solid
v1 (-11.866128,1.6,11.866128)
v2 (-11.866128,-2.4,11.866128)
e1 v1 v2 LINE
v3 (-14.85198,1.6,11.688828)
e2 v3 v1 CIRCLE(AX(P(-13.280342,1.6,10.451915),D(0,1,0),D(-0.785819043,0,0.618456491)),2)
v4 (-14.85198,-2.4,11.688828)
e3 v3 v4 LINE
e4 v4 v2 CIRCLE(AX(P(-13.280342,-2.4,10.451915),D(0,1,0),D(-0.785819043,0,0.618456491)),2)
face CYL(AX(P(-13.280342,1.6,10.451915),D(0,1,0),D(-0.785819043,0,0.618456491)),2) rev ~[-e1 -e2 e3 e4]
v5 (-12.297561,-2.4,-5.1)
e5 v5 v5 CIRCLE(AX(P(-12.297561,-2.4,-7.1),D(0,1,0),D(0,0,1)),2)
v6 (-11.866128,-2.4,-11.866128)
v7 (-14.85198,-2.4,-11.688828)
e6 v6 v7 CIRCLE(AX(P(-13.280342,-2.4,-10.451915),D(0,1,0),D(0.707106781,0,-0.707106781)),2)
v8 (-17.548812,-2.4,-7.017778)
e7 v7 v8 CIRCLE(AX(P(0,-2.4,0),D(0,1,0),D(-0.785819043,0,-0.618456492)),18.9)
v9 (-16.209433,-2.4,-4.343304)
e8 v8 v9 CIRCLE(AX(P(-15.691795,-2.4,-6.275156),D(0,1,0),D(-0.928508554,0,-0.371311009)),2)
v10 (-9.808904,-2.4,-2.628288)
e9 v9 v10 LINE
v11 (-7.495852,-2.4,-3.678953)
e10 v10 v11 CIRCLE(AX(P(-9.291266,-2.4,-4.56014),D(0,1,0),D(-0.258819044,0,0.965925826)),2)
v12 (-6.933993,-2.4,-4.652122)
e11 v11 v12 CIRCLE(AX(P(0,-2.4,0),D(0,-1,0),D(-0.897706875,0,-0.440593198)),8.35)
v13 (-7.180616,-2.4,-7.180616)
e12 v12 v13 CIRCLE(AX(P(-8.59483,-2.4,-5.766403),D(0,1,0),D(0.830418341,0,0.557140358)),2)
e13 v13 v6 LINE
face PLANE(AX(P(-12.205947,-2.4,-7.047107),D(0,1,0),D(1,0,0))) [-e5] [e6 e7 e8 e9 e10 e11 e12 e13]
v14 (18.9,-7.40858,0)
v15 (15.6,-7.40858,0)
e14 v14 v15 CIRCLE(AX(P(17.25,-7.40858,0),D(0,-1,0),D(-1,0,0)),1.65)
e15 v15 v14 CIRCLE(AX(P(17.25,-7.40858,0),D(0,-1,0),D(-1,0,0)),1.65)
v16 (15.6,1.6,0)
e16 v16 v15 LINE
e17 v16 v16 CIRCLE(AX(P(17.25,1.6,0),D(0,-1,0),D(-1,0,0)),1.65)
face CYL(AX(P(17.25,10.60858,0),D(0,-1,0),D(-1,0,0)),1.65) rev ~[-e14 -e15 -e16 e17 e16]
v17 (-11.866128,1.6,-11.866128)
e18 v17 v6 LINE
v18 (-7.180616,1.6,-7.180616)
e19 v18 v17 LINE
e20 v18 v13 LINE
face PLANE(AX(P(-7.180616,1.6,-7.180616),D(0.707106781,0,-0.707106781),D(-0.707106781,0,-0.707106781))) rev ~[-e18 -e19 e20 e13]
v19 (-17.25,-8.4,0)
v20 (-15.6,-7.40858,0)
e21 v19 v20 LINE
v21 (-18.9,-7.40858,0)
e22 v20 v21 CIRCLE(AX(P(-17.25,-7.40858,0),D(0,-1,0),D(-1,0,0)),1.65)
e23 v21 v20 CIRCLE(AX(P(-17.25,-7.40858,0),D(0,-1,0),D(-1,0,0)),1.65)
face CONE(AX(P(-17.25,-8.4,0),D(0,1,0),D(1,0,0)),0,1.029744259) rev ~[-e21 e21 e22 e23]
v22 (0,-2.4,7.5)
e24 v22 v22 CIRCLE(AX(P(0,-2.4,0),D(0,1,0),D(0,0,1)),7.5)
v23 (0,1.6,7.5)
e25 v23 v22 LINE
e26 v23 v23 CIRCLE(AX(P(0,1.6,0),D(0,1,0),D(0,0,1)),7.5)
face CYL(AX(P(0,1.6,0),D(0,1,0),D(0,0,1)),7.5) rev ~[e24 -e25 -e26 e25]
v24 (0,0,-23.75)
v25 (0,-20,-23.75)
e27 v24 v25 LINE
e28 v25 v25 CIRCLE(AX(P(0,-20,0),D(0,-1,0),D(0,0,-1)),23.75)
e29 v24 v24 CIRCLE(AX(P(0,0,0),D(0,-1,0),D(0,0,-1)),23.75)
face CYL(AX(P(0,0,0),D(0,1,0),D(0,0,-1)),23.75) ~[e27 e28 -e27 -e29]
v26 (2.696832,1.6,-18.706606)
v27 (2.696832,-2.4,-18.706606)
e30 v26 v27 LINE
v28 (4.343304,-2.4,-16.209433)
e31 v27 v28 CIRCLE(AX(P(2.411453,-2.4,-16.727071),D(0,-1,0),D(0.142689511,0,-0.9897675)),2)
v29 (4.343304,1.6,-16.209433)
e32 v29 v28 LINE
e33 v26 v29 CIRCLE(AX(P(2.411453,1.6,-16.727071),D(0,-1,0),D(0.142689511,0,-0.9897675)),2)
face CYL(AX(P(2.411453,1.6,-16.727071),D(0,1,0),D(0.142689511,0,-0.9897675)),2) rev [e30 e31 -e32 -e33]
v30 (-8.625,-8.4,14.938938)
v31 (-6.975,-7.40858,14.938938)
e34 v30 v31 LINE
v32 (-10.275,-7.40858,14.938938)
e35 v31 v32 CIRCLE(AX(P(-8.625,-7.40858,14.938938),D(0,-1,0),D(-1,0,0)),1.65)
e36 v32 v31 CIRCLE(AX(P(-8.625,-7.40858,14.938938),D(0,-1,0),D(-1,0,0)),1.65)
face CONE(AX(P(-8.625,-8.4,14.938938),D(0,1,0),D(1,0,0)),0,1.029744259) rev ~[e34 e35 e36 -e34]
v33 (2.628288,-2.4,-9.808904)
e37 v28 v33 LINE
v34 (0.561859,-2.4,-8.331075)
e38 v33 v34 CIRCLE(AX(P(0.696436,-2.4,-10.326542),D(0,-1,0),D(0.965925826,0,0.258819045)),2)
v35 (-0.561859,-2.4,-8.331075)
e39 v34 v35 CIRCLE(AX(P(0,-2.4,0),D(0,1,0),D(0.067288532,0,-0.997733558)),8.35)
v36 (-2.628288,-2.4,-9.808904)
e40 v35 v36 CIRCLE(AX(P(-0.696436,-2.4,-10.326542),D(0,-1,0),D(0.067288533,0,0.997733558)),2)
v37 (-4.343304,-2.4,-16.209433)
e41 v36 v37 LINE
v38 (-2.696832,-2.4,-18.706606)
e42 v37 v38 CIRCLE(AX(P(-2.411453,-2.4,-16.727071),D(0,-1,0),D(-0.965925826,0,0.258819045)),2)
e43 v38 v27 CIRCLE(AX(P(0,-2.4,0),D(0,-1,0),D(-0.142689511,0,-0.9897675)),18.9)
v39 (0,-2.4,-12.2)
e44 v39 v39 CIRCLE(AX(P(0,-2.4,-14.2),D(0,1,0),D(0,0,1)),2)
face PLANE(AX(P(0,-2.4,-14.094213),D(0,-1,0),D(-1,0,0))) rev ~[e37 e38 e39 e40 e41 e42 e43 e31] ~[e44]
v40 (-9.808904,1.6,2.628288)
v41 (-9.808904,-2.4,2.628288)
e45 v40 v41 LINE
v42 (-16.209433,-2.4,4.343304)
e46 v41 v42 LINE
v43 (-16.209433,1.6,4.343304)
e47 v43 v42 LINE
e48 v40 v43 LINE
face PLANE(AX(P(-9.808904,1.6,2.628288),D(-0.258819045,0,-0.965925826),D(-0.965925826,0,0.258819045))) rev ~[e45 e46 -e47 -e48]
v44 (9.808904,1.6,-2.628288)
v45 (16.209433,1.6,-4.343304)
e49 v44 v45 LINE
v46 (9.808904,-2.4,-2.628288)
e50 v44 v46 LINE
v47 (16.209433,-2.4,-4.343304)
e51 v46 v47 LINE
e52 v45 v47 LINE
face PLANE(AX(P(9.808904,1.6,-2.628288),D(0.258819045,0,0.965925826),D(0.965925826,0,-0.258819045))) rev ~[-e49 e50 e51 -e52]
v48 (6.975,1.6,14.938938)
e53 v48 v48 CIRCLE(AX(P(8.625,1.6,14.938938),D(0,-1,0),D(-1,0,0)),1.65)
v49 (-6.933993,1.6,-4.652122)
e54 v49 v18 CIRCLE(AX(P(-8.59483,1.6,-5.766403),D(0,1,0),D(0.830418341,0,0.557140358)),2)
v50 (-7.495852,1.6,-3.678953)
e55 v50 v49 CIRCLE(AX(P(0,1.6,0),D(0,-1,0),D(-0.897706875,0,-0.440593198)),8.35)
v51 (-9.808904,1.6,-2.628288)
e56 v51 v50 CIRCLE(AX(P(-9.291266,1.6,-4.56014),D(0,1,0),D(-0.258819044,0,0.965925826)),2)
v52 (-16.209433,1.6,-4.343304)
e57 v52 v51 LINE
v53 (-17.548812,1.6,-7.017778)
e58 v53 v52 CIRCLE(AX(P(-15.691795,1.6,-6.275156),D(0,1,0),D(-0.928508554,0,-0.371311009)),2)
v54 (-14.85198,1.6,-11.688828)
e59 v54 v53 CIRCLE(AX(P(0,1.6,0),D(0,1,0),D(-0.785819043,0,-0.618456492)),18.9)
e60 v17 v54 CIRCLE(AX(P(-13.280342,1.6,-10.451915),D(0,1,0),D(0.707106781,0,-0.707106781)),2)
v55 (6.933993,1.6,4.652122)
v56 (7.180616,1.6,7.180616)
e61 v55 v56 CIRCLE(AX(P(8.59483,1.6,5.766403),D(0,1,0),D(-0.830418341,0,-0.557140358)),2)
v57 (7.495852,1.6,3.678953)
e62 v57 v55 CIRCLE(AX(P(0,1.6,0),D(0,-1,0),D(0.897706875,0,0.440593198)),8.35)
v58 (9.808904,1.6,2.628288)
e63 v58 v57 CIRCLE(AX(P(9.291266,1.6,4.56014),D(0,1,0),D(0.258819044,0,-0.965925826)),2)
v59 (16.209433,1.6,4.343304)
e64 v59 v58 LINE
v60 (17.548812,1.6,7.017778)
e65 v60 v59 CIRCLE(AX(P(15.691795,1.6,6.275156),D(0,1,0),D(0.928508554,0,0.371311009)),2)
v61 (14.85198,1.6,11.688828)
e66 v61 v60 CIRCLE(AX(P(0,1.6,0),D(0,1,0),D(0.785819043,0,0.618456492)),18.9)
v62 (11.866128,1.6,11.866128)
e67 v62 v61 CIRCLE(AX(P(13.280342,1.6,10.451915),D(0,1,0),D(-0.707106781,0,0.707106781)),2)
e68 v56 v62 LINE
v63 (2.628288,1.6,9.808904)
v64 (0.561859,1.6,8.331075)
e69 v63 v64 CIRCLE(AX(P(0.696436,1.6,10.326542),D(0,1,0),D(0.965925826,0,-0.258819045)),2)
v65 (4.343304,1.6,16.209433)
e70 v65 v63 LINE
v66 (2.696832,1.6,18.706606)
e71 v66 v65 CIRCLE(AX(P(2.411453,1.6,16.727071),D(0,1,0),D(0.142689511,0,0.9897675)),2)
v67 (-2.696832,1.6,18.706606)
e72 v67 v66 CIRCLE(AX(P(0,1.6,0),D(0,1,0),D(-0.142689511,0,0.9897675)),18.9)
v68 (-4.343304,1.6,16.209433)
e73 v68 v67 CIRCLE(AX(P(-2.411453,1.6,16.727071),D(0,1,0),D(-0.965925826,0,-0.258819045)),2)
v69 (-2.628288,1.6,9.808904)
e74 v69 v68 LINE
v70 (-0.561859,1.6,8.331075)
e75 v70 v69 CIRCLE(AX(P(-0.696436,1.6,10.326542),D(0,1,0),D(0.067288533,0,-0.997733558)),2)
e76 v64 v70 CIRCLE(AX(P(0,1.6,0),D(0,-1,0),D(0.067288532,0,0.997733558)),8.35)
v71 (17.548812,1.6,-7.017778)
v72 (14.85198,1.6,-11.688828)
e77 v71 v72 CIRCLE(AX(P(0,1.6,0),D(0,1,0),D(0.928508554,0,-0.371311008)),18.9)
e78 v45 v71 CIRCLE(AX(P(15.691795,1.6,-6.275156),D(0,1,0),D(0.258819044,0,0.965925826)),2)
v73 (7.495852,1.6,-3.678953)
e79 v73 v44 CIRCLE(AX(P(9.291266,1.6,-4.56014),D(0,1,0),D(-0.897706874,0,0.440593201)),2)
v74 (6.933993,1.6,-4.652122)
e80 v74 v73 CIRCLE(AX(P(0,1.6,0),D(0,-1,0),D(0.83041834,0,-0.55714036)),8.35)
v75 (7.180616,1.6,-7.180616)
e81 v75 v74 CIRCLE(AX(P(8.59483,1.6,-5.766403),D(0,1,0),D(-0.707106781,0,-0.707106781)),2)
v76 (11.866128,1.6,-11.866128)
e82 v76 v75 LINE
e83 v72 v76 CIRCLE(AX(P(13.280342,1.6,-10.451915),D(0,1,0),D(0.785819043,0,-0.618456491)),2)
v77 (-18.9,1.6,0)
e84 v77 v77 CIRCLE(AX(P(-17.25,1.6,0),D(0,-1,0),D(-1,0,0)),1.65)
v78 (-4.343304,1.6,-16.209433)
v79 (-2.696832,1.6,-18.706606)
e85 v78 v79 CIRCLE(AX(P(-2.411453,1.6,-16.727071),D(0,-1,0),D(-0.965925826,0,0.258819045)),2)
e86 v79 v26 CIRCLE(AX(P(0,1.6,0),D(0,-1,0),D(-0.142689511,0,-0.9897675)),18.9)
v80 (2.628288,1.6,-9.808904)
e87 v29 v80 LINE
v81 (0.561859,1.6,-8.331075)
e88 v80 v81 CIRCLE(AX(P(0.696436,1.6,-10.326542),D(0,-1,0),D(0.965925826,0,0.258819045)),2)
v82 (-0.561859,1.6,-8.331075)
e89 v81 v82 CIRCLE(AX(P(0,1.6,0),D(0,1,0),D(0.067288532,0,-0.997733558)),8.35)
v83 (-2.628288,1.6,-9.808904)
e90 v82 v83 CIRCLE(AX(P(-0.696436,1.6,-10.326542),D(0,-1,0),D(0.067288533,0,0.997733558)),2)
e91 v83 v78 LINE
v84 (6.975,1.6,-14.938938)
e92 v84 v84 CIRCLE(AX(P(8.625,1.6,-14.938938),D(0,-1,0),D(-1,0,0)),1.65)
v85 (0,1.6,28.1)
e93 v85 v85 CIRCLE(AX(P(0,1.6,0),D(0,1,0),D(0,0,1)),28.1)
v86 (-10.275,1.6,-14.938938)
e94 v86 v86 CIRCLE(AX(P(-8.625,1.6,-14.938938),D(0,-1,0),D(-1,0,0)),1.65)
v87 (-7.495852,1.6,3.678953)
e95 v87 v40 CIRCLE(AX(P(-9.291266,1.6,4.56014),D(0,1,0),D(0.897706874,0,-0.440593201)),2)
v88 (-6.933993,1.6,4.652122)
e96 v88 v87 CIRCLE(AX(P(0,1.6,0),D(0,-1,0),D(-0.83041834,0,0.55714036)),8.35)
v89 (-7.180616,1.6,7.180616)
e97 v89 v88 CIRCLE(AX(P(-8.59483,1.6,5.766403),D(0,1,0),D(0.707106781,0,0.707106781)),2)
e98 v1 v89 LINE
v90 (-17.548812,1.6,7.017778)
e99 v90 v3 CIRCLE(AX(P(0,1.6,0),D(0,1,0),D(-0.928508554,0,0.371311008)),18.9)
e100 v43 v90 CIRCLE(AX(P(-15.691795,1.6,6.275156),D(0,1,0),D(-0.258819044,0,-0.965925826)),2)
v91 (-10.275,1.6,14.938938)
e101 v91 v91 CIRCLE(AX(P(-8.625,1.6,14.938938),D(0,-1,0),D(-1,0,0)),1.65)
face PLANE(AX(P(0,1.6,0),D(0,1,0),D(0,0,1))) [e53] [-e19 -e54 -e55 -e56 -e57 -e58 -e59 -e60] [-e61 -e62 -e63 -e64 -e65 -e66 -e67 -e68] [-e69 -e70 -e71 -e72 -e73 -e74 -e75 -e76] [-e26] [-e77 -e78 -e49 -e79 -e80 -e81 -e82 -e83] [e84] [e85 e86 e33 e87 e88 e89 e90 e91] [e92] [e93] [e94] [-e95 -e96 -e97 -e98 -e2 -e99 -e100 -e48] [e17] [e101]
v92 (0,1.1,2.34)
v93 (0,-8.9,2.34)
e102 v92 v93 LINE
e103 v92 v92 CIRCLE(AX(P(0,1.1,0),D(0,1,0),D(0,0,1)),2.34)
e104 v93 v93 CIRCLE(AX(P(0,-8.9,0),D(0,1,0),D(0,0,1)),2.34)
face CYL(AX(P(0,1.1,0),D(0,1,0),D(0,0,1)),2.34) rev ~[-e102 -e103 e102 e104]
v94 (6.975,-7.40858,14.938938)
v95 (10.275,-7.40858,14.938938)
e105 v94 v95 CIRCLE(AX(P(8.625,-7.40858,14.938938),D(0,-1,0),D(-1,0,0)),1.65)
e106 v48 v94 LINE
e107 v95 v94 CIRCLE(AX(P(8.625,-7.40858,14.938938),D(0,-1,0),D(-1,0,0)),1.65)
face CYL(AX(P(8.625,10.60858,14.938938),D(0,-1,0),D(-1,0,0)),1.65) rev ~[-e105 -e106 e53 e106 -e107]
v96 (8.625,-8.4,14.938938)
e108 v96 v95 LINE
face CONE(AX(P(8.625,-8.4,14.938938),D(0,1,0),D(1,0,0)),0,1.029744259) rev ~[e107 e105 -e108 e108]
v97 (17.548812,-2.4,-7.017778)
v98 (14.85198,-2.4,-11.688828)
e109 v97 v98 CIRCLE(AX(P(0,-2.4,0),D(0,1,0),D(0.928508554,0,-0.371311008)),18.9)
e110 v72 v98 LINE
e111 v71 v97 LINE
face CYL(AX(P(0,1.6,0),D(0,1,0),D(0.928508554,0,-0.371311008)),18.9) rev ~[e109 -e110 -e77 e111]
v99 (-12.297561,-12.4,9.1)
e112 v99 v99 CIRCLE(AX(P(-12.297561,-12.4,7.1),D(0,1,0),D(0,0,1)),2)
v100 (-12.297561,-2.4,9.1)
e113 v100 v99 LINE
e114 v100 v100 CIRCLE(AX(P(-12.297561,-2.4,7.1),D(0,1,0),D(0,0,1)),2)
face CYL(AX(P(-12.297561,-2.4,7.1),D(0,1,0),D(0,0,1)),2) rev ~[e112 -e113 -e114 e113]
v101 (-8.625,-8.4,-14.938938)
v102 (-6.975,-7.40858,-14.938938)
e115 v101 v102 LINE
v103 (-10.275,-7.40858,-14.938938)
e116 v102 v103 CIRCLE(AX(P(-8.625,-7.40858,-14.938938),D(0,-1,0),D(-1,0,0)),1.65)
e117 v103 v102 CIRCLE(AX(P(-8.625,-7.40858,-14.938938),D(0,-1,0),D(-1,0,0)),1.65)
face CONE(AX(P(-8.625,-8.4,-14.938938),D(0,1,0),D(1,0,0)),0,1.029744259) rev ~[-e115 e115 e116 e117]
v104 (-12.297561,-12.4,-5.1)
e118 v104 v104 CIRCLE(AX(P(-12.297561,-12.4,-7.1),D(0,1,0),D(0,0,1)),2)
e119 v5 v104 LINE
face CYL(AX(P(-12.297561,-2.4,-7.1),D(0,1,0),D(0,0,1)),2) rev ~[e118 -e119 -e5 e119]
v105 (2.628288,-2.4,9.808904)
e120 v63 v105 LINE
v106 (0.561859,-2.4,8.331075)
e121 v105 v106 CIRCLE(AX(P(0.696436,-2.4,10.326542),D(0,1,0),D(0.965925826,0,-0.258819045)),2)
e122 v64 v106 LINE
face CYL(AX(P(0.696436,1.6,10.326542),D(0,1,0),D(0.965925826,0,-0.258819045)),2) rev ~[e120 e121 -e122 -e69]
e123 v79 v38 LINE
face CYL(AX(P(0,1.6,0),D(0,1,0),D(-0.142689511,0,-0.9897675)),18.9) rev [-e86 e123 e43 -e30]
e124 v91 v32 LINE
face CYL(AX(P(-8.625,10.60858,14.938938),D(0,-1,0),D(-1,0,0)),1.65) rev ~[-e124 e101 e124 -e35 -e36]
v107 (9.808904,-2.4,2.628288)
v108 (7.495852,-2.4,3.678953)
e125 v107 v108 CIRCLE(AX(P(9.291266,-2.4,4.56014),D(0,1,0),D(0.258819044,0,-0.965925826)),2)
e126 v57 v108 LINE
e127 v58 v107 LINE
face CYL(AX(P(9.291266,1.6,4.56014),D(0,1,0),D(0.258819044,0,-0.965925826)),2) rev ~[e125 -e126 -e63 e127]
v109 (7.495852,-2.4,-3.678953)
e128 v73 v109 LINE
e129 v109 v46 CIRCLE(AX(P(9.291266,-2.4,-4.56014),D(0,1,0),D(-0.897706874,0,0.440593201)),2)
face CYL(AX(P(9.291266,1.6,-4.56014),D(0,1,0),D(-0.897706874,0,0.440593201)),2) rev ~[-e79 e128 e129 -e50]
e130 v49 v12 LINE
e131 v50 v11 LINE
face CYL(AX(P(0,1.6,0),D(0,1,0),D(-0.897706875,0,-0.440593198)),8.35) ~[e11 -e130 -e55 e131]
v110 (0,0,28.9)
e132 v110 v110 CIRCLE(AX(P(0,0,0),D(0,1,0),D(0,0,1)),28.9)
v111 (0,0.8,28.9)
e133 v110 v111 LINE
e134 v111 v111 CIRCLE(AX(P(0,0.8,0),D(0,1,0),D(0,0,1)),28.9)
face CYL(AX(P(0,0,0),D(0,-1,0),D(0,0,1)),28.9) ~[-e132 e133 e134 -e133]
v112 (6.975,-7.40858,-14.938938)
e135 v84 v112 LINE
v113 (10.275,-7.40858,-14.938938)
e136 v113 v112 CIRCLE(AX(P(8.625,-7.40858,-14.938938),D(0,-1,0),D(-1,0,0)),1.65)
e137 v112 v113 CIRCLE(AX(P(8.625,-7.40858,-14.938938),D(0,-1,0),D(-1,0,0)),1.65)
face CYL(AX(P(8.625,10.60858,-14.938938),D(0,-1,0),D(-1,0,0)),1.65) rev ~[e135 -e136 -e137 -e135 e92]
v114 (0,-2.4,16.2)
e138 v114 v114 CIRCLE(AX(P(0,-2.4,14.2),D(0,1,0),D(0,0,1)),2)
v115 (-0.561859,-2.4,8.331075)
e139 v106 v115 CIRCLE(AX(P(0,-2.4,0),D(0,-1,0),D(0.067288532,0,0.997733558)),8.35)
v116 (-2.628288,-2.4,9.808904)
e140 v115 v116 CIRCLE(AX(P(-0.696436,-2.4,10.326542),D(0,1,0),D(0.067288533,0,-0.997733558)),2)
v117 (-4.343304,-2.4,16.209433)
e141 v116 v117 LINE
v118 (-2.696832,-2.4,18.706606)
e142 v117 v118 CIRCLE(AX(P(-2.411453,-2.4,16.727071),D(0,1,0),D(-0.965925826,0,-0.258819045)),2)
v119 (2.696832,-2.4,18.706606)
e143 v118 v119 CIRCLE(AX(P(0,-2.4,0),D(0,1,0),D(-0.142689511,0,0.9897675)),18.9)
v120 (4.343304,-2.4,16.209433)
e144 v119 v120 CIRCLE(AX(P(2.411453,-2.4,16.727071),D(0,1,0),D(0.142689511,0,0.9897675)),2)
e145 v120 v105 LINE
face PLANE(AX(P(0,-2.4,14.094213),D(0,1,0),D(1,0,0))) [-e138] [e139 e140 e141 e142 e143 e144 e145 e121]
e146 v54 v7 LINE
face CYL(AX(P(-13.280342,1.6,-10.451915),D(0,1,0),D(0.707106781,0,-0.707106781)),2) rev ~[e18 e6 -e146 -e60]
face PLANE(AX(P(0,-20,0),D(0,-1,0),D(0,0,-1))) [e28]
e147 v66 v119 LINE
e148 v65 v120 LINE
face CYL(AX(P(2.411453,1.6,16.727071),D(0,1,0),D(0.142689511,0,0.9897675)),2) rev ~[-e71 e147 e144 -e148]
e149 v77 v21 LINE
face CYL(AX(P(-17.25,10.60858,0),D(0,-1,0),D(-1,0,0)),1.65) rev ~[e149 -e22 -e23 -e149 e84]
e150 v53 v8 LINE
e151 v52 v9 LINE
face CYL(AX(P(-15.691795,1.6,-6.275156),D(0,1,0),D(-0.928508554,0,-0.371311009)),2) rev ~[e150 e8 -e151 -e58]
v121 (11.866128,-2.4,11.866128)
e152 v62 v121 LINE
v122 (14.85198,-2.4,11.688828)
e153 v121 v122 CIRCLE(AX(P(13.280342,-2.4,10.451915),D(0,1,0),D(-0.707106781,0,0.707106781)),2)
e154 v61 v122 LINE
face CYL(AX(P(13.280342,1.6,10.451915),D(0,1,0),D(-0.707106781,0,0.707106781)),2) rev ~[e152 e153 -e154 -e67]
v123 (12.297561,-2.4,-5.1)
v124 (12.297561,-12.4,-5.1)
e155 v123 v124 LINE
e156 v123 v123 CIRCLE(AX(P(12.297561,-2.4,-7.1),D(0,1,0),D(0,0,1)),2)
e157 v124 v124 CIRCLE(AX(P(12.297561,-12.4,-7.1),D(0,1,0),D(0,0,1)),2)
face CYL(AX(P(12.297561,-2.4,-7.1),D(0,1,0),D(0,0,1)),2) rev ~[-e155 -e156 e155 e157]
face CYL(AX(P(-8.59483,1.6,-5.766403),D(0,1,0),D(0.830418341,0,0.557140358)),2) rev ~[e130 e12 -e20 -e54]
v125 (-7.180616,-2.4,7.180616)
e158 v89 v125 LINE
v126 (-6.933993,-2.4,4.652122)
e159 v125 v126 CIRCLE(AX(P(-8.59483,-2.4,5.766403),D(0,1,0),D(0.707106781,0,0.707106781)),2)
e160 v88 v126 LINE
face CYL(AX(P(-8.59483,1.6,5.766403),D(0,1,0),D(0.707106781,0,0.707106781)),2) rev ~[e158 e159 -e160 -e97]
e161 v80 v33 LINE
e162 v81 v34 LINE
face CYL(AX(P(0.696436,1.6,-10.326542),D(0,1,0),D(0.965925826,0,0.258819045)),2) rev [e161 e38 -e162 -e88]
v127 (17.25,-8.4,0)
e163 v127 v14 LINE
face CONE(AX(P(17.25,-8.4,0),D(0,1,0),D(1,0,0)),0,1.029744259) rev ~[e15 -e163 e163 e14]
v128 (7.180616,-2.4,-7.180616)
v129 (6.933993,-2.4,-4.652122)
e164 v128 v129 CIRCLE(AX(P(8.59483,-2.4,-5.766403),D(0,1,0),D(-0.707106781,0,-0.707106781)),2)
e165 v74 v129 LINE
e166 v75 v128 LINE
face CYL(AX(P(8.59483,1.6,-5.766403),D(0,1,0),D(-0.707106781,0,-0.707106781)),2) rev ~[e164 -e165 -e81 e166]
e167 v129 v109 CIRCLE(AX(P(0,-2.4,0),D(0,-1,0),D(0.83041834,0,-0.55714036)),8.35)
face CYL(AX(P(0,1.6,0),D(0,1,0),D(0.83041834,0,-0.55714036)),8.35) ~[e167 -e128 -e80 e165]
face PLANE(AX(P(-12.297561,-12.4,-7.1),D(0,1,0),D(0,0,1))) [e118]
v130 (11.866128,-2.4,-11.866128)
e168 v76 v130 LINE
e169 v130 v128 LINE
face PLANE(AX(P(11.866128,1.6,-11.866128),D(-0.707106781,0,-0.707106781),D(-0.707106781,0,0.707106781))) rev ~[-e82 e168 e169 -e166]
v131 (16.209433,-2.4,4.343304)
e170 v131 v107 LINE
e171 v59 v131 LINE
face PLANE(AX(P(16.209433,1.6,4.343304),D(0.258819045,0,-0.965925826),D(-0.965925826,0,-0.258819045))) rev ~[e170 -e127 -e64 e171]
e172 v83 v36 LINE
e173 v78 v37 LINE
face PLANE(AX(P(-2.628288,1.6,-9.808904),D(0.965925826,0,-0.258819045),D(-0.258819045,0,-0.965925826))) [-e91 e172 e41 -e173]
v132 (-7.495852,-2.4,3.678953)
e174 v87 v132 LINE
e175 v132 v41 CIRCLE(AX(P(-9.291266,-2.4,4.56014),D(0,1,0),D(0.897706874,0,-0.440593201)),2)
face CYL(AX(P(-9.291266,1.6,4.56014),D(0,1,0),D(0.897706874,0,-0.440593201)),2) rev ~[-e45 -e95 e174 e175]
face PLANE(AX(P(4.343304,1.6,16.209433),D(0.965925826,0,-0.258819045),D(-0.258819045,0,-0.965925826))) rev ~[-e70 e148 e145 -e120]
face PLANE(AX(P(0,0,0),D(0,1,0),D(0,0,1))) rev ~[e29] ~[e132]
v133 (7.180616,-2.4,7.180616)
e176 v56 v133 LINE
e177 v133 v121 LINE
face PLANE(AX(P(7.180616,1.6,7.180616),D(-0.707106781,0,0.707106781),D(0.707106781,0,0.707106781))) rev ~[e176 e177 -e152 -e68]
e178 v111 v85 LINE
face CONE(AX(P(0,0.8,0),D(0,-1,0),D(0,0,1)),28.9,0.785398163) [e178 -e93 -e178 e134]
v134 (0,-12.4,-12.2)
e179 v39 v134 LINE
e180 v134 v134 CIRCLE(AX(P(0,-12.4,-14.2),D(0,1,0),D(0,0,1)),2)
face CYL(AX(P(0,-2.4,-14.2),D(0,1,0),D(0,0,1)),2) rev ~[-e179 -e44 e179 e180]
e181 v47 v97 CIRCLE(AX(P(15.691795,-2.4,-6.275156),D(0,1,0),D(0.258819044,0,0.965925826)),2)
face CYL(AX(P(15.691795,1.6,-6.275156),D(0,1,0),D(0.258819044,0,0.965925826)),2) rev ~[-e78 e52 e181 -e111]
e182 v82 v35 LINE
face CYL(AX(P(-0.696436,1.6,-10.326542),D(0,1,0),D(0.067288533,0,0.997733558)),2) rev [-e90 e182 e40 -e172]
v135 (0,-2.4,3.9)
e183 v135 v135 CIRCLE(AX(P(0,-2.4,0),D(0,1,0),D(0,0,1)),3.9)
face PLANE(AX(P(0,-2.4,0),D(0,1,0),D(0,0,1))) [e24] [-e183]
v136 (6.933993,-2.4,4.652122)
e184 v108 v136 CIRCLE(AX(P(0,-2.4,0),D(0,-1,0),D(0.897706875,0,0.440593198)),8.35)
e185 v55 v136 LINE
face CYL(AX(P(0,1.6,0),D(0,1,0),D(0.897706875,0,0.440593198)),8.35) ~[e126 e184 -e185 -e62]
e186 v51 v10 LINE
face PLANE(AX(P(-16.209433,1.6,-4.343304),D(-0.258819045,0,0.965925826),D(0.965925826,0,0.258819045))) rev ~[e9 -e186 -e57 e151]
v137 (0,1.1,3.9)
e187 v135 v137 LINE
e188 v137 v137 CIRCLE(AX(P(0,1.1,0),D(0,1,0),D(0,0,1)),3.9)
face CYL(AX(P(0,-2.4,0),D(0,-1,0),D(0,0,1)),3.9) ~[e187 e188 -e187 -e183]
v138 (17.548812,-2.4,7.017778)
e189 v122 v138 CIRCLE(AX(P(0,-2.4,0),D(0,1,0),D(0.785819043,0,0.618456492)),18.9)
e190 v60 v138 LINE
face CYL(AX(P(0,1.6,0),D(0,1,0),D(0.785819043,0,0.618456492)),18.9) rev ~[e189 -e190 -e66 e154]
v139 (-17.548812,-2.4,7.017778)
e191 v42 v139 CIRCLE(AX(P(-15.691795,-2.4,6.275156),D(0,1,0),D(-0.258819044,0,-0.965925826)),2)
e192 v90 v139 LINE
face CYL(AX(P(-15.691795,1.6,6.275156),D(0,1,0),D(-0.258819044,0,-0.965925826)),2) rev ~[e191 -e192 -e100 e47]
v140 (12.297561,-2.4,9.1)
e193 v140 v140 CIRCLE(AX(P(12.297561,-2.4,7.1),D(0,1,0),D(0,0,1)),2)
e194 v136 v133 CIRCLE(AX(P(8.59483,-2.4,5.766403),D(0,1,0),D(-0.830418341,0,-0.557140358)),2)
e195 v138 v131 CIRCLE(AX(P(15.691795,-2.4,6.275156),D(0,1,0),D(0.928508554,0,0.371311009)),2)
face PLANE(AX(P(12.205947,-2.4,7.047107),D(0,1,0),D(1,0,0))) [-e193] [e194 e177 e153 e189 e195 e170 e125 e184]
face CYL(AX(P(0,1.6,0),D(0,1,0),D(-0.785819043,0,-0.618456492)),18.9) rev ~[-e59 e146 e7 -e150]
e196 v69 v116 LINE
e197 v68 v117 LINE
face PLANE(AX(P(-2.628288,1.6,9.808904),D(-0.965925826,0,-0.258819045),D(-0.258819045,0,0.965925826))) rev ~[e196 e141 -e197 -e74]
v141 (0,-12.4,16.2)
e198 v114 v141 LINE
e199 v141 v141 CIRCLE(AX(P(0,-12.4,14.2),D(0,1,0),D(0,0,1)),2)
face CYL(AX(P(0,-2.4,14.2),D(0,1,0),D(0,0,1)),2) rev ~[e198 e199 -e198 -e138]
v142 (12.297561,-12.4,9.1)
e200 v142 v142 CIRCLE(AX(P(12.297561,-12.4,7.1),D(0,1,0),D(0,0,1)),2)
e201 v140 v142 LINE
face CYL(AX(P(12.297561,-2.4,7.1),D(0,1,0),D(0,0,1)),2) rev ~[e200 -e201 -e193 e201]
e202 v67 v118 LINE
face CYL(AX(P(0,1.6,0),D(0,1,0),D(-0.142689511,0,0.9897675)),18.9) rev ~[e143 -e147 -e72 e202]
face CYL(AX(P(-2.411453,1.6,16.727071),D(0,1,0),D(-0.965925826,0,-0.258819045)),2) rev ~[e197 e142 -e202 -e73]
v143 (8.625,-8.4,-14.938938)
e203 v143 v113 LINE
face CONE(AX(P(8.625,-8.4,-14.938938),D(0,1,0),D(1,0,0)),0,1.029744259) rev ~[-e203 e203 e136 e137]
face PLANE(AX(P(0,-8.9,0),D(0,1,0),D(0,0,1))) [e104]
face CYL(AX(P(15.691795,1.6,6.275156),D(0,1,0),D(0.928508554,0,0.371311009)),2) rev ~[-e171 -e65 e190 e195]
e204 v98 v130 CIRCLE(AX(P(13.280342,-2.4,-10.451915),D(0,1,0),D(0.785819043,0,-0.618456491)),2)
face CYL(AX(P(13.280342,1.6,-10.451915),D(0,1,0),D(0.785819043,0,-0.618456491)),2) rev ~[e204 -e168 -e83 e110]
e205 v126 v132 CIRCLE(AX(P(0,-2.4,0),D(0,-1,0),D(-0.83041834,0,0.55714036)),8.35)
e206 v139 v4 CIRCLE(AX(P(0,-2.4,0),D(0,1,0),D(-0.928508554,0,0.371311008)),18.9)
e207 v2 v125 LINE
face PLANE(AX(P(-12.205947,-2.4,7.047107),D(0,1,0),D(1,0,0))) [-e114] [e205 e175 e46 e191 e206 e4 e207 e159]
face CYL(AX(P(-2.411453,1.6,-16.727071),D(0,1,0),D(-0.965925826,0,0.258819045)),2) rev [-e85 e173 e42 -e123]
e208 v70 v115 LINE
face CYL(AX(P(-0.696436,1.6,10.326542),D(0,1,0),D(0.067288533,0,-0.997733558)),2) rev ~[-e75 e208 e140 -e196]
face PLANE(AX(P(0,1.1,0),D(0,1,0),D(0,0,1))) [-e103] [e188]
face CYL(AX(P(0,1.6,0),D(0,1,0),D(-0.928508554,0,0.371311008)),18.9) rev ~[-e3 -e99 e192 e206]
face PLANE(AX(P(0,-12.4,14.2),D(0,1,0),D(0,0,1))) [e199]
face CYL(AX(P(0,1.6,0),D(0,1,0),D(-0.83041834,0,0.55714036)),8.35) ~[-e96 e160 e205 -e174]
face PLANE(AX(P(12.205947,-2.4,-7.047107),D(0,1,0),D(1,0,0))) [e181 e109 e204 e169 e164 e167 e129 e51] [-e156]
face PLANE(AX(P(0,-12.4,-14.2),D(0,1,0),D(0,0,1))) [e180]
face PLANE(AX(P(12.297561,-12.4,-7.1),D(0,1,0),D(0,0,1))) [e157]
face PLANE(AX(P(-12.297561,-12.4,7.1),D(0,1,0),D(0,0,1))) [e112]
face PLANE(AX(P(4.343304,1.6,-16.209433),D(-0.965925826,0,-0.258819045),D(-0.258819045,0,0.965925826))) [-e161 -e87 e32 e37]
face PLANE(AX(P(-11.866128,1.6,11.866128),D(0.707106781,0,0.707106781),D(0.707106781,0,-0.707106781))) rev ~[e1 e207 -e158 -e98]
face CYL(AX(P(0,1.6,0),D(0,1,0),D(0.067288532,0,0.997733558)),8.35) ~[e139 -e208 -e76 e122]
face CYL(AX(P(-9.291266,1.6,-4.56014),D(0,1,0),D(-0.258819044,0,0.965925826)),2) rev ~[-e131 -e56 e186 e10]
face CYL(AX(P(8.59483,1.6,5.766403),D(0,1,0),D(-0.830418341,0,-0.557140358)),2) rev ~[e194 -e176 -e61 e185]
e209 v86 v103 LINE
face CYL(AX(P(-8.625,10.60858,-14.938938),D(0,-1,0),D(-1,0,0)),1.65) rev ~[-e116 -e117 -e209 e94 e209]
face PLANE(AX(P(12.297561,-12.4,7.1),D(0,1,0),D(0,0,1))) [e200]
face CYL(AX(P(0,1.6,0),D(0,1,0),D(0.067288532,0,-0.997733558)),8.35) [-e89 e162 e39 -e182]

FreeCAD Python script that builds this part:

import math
import FreeCAD as App
import Part
import Sketcher
from FreeCAD import Vector
Q = App.Units.Quantity


def edges_at(feature, points):
    """Names of the edges that pass closest to the given points."""
    edges = feature.Shape.Edges
    near = lambda p: min(range(len(edges)), key=lambda i: edges[i].distToShape(Part.Vertex(*p))[0])
    return sorted({f"Edge{near(p) + 1}" for p in points})

doc = App.newDocument("Part")
body = doc.addObject("PartDesign::Body", "Body")

# Sketch on XZ plane
sketch1 = body.newObject("Sketcher::SketchObject", "Sketch")
sketch1.AttachmentSupport = (doc.getObject("XZ_Plane"), [""])
sketch1.MapMode = "FlatFace"
sketch1.addGeometry(Part.Circle(Vector(0, 0, 0), Vector(0, 0, 1), 29), False)
sketch1.addConstraint(Sketcher.Constraint("Coincident", 0, 3, -1, 1))
sketch1.addConstraint(Sketcher.Constraint("Diameter", 0, 57.8))
pad1 = body.newObject("PartDesign::Pad", "Pad")
pad1.Profile = sketch1
pad1.Length = 1.6
pad1.Reversed = True
doc.recompute()

chamfer = body.newObject("PartDesign::Chamfer", "Chamfer")
chamfer.Base = (pad1, edges_at(pad1, [(0, 1.6, -28.9)]))
chamfer.Size = 0.8

# Sketch on XZ plane
sketch2 = body.newObject("Sketcher::SketchObject", "Sketch001")
sketch2.AttachmentSupport = (doc.getObject("XZ_Plane"), [""])
sketch2.MapMode = "FlatFace"
sketch2.addGeometry(Part.Circle(Vector(0, 0, 0), Vector(0, 0, 1), 24), False)
sketch2.addConstraint(Sketcher.Constraint("Coincident", 0, 3, -1, 1))
sketch2.addConstraint(Sketcher.Constraint("Diameter", 0, 47.5))
pad2 = body.newObject("PartDesign::Pad", "Pad001")
pad2.Profile = sketch2
pad2.Length = 20

# Sketch on XZ plane
sketch3 = body.newObject("Sketcher::SketchObject", "Sketch002")
sketch3.AttachmentSupport = (doc.getObject("XZ_Plane"), [""])
sketch3.MapMode = "FlatFace"
sketch3.AttachmentOffset = App.Placement(Vector(0, 0, -1.6), App.Rotation())
sketch3.addGeometry(Part.Circle(Vector(-17.2, 0, 0), Vector(0, 0, 1), 1.6), False)
sketch3.addGeometry(Part.Circle(Vector(-8.6, -14.9, 0), Vector(0, 0, 1), 1.6), False)
sketch3.addGeometry(Part.Circle(Vector(8.6, -14.9, 0), Vector(0, 0, 1), 1.6), False)
sketch3.addGeometry(Part.Circle(Vector(17.2, 0, 0), Vector(0, 0, 1), 1.6), False)
sketch3.addGeometry(Part.Circle(Vector(8.6, 14.9, 0), Vector(0, 0, 1), 1.6), False)
sketch3.addGeometry(Part.Circle(Vector(-8.6, 14.9, 0), Vector(0, 0, 1), 1.6), False)
sketch3.addConstraint(Sketcher.Constraint("Equal", 0, 1))
sketch3.addConstraint(Sketcher.Constraint("Equal", 1, 2))
sketch3.addConstraint(Sketcher.Constraint("Equal", 2, 3))
sketch3.addConstraint(Sketcher.Constraint("Equal", 3, 4))
sketch3.addConstraint(Sketcher.Constraint("Equal", 4, 5))
sketch3.addConstraint(Sketcher.Constraint("Symmetric", 0, 3, 3, 3, -1, 1))
sketch3.addConstraint(Sketcher.Constraint("Symmetric", 1, 3, 4, 3, -1, 1))
sketch3.addConstraint(Sketcher.Constraint("Symmetric", 2, 3, 5, 3, -1, 1))
sketch3.addConstraint(Sketcher.Constraint("Symmetric", 1, 3, 2, 3, -2))
sketch3.addConstraint(Sketcher.Constraint("PointOnObject", 0, 3, -1))
sketch3.addConstraint(Sketcher.Constraint("Diameter", 0, 3.3))
sketch3.addConstraint(Sketcher.Constraint("DistanceX", 0, 3, 3, 3, 34.5))
sketch3.addConstraint(Sketcher.Constraint("DistanceX", 1, 3, 2, 3, 17.25))
sketch3.addConstraint(Sketcher.Constraint("DistanceY", 1, 3, -1, 1, 14.938938))
doc.recompute()
hole = body.newObject("PartDesign::Hole", "Hole")
hole.Profile = sketch3
hole.ThreadType = "None"
hole.Diameter = 3.3
hole.DepthType = "Dimension"
hole.Depth = 9.00858
hole.DrillPoint = "Angled"
hole.DrillPointAngle = 118
hole.Reversed = True

# Sketch on XZ plane
sketch4 = body.newObject("Sketcher::SketchObject", "Sketch003")
sketch4.AttachmentSupport = (doc.getObject("XZ_Plane"), [""])
sketch4.MapMode = "FlatFace"
sketch4.AttachmentOffset = App.Placement(Vector(0, 0, -1.6), App.Rotation())
sketch4.addGeometry(Part.Circle(Vector(0, 0, 0), Vector(0, 0, 1), 7.5), False)
sketch4.addGeometry(Part.LineSegment(Vector(-4.3, -16.2, 0), Vector(-2.6, -9.8, 0)), False)
sketch4.addGeometry(Part.ArcOfCircle(Part.Circle(Vector(-0.7, -10.3, 0), Vector(0, 0, 1), 2), math.radians(86), math.radians(165)), False)
sketch4.addGeometry(Part.ArcOfCircle(Part.Circle(Vector(0, 0, 0), Vector(0, 0, 1), 8.4), math.radians(-93.86), math.radians(-86.14)), False)
sketch4.addGeometry(Part.ArcOfCircle(Part.Circle(Vector(0.7, -10.3, 0), Vector(0, 0, 1), 2), math.radians(15), math.radians(94)), False)
sketch4.addGeometry(Part.LineSegment(Vector(2.6, -9.8, 0), Vector(4.3, -16.2, 0)), False)
sketch4.addGeometry(Part.ArcOfCircle(Part.Circle(Vector(2.4, -16.7, 0), Vector(0, 0, 1), 2), math.radians(-82), math.radians(15)), False)
sketch4.addGeometry(Part.ArcOfCircle(Part.Circle(Vector(0, 0, 0), Vector(0, 0, 1), 18.9), math.radians(-98.2), math.radians(-81.8)), False)
sketch4.addGeometry(Part.ArcOfCircle(Part.Circle(Vector(-2.4, -16.7, 0), Vector(0, 0, 1), 2), math.radians(165), math.radians(262)), False)
sketch4.addGeometry(Part.LineSegment(Vector(9.8, -2.6, 0), Vector(16.2, -4.3, 0)), False)
sketch4.addGeometry(Part.ArcOfCircle(Part.Circle(Vector(15.7, -6.3, 0), Vector(0, 0, 1), 2), math.radians(-22), math.radians(75)), False)
sketch4.addGeometry(Part.ArcOfCircle(Part.Circle(Vector(0, 0, 0), Vector(0, 0, 1), 18.9), math.radians(-38.2), math.radians(-21.8)), False)
sketch4.addGeometry(Part.ArcOfCircle(Part.Circle(Vector(13.3, -10.5, 0), Vector(0, 0, 1), 2), math.radians(-135), math.radians(-38)), False)
sketch4.addGeometry(Part.LineSegment(Vector(11.9, -11.9, 0), Vector(7.2, -7.2, 0)), False)
sketch4.addGeometry(Part.ArcOfCircle(Part.Circle(Vector(8.6, -5.8, 0), Vector(0, 0, 1), 2), math.radians(146), math.radians(225)), False)
sketch4.addGeometry(Part.ArcOfCircle(Part.Circle(Vector(0, 0, 0), Vector(0, 0, 1), 8.3), math.radians(-33.86), math.radians(-26.14)), False)
sketch4.addGeometry(Part.ArcOfCircle(Part.Circle(Vector(9.3, -4.6, 0), Vector(0, 0, 1), 2), math.radians(75), math.radians(154)), False)
sketch4.addGeometry(Part.LineSegment(Vector(7.2, 7.2, 0), Vector(11.9, 11.9, 0)), False)
sketch4.addGeometry(Part.ArcOfCircle(Part.Circle(Vector(13.3, 10.5, 0), Vector(0, 0, 1), 2), math.radians(38), math.radians(135)), False)
sketch4.addGeometry(Part.ArcOfCircle(Part.Circle(Vector(0, 0, 0), Vector(0, 0, 1), 18.9), math.radians(21.8), math.radians(38.2)), False)
sketch4.addGeometry(Part.ArcOfCircle(Part.Circle(Vector(15.7, 6.3, 0), Vector(0, 0, 1), 2), math.radians(-75), math.radians(22)), False)
sketch4.addGeometry(Part.LineSegment(Vector(16.2, 4.3, 0), Vector(9.8, 2.6, 0)), False)
sketch4.addGeometry(Part.ArcOfCircle(Part.Circle(Vector(9.3, 4.6, 0), Vector(0, 0, 1), 2), math.radians(-154), math.radians(-75)), False)
sketch4.addGeometry(Part.ArcOfCircle(Part.Circle(Vector(0, 0, 0), Vector(0, 0, 1), 8.3), math.radians(26.14), math.radians(33.86)), False)
sketch4.addGeometry(Part.ArcOfCircle(Part.Circle(Vector(8.6, 5.8, 0), Vector(0, 0, 1), 2), math.radians(135), math.radians(214)), False)
sketch4.addGeometry(Part.LineSegment(Vector(-2.6, 9.8, 0), Vector(-4.3, 16.2, 0)), False)
sketch4.addGeometry(Part.ArcOfCircle(Part.Circle(Vector(-2.4, 16.7, 0), Vector(0, 0, 1), 2), math.radians(98), math.radians(195)), False)
sketch4.addGeometry(Part.ArcOfCircle(Part.Circle(Vector(0, 0, 0), Vector(0, 0, 1), 18.9), math.radians(81.8), math.radians(98.2)), False)
sketch4.addGeometry(Part.ArcOfCircle(Part.Circle(Vector(2.4, 16.7, 0), Vector(0, 0, 1), 2), math.radians(-15), math.radians(82)), False)
sketch4.addGeometry(Part.LineSegment(Vector(4.3, 16.2, 0), Vector(2.6, 9.8, 0)), False)
sketch4.addGeometry(Part.ArcOfCircle(Part.Circle(Vector(0.7, 10.3, 0), Vector(0, 0, 1), 2), math.radians(-94), math.radians(-15)), False)
sketch4.addGeometry(Part.ArcOfCircle(Part.Circle(Vector(0, 0, 0), Vector(0, 0, 1), 8.4), math.radians(86.14), math.radians(93.86)), False)
sketch4.addGeometry(Part.ArcOfCircle(Part.Circle(Vector(-0.7, 10.3, 0), Vector(0, 0, 1), 2), math.radians(-165), math.radians(-86)), False)
sketch4.addGeometry(Part.LineSegment(Vector(-9.8, 2.6, 0), Vector(-16.2, 4.3, 0)), False)
sketch4.addGeometry(Part.ArcOfCircle(Part.Circle(Vector(-15.7, 6.3, 0), Vector(0, 0, 1), 2), math.radians(158), math.radians(255)), False)
sketch4.addGeometry(Part.ArcOfCircle(Part.Circle(Vector(0, 0, 0), Vector(0, 0, 1), 18.9), math.radians(141.8), math.radians(158.2)), False)
sketch4.addGeometry(Part.ArcOfCircle(Part.Circle(Vector(-13.3, 10.5, 0), Vector(0, 0, 1), 2), math.radians(45), math.radians(142)), False)
sketch4.addGeometry(Part.LineSegment(Vector(-11.9, 11.9, 0), Vector(-7.2, 7.2, 0)), False)
sketch4.addGeometry(Part.ArcOfCircle(Part.Circle(Vector(-8.6, 5.8, 0), Vector(0, 0, 1), 2), math.radians(-34), math.radians(45)), False)
sketch4.addGeometry(Part.ArcOfCircle(Part.Circle(Vector(0, 0, 0), Vector(0, 0, 1), 8.3), math.radians(146.14), math.radians(153.86)), False)
sketch4.addGeometry(Part.ArcOfCircle(Part.Circle(Vector(-9.3, 4.6, 0), Vector(0, 0, 1), 2), math.radians(-105), math.radians(-26)), False)
sketch4.addGeometry(Part.LineSegment(Vector(-7.2, -7.2, 0), Vector(-11.9, -11.9, 0)), False)
sketch4.addGeometry(Part.ArcOfCircle(Part.Circle(Vector(-13.3, -10.5, 0), Vector(0, 0, 1), 2), math.radians(-142), math.radians(-45)), False)
sketch4.addGeometry(Part.ArcOfCircle(Part.Circle(Vector(0, 0, 0), Vector(0, 0, 1), 18.9), math.radians(-158.2), math.radians(-141.8)), False)
sketch4.addGeometry(Part.ArcOfCircle(Part.Circle(Vector(-15.7, -6.3, 0), Vector(0, 0, 1), 2), math.radians(105), math.radians(202)), False)
sketch4.addGeometry(Part.LineSegment(Vector(-16.2, -4.3, 0), Vector(-9.8, -2.6, 0)), False)
sketch4.addGeometry(Part.ArcOfCircle(Part.Circle(Vector(-9.3, -4.6, 0), Vector(0, 0, 1), 2), math.radians(26), math.radians(105)), False)
sketch4.addGeometry(Part.ArcOfCircle(Part.Circle(Vector(0, 0, 0), Vector(0, 0, 1), 8.3), math.radians(-153.86), math.radians(-146.14)), False)
sketch4.addGeometry(Part.ArcOfCircle(Part.Circle(Vector(-8.6, -5.8, 0), Vector(0, 0, 1), 2), math.radians(-45), math.radians(34)), False)
sketch4.addConstraint(Sketcher.Constraint("Tangent", 1, 2, 2, 2))
sketch4.addConstraint(Sketcher.Constraint("Tangent", 2, 1, 3, 1))
sketch4.addConstraint(Sketcher.Constraint("Tangent", 3, 2, 4, 2))
sketch4.addConstraint(Sketcher.Constraint("Tangent", 4, 1, 5, 1))
sketch4.addConstraint(Sketcher.Constraint("Tangent", 5, 2, 6, 2))
sketch4.addConstraint(Sketcher.Constraint("Tangent", 6, 1, 7, 2))
sketch4.addConstraint(Sketcher.Constraint("Tangent", 7, 1, 8, 2))
sketch4.addConstraint(Sketcher.Constraint("Tangent", 8, 1, 1, 1))
sketch4.addConstraint(Sketcher.Constraint("Tangent", 9, 2, 10, 2))
sketch4.addConstraint(Sketcher.Constraint("Tangent", 10, 1, 11, 2))
sketch4.addConstraint(Sketcher.Constraint("Tangent", 11, 1, 12, 2))
sketch4.addConstraint(Sketcher.Constraint("Tangent", 12, 1, 13, 1))
sketch4.addConstraint(Sketcher.Constraint("Tangent", 13, 2, 14, 2))
sketch4.addConstraint(Sketcher.Constraint("Tangent", 14, 1, 15, 1))
sketch4.addConstraint(Sketcher.Constraint("Tangent", 15, 2, 16, 2))
sketch4.addConstraint(Sketcher.Constraint("Tangent", 16, 1, 9, 1))
sketch4.addConstraint(Sketcher.Constraint("Tangent", 17, 2, 18, 2))
sketch4.addConstraint(Sketcher.Constraint("Tangent", 18, 1, 19, 2))
sketch4.addConstraint(Sketcher.Constraint("Tangent", 19, 1, 20, 2))
sketch4.addConstraint(Sketcher.Constraint("Tangent", 20, 1, 21, 1))
sketch4.addConstraint(Sketcher.Constraint("Tangent", 21, 2, 22, 2))
sketch4.addConstraint(Sketcher.Constraint("Tangent", 22, 1, 23, 1))
sketch4.addConstraint(Sketcher.Constraint("Tangent", 23, 2, 24, 2))
sketch4.addConstraint(Sketcher.Constraint("Tangent", 24, 1, 17, 1))
sketch4.addConstraint(Sketcher.Constraint("Tangent", 25, 2, 26, 2))
sketch4.addConstraint(Sketcher.Constraint("Tangent", 26, 1, 27, 2))
sketch4.addConstraint(Sketcher.Constraint("Tangent", 27, 1, 28, 2))
sketch4.addConstraint(Sketcher.Constraint("Tangent", 28, 1, 29, 1))
sketch4.addConstraint(Sketcher.Constraint("Tangent", 29, 2, 30, 2))
sketch4.addConstraint(Sketcher.Constraint("Tangent", 30, 1, 31, 1))
sketch4.addConstraint(Sketcher.Constraint("Tangent", 31, 2, 32, 2))
sketch4.addConstraint(Sketcher.Constraint("Tangent", 32, 1, 25, 1))
sketch4.addConstraint(Sketcher.Constraint("Tangent", 33, 2, 34, 2))
sketch4.addConstraint(Sketcher.Constraint("Tangent", 34, 1, 35, 2))
sketch4.addConstraint(Sketcher.Constraint("Tangent", 35, 1, 36, 2))
sketch4.addConstraint(Sketcher.Constraint("Tangent", 36, 1, 37, 1))
sketch4.addConstraint(Sketcher.Constraint("Tangent", 37, 2, 38, 2))
sketch4.addConstraint(Sketcher.Constraint("Tangent", 38, 1, 39, 1))
sketch4.addConstraint(Sketcher.Constraint("Tangent", 39, 2, 40, 2))
sketch4.addConstraint(Sketcher.Constraint("Tangent", 40, 1, 33, 1))
sketch4.addConstraint(Sketcher.Constraint("Tangent", 41, 2, 42, 2))
sketch4.addConstraint(Sketcher.Constraint("Tangent", 42, 1, 43, 2))
sketch4.addConstraint(Sketcher.Constraint("Tangent", 43, 1, 44, 2))
sketch4.addConstraint(Sketcher.Constraint("Tangent", 44, 1, 45, 1))
sketch4.addConstraint(Sketcher.Constraint("Tangent", 45, 2, 46, 2))
sketch4.addConstraint(Sketcher.Constraint("Tangent", 46, 1, 47, 1))
sketch4.addConstraint(Sketcher.Constraint("Tangent", 47, 2, 48, 2))
sketch4.addConstraint(Sketcher.Constraint("Tangent", 48, 1, 41, 1))
sketch4.addConstraint(Sketcher.Constraint("Coincident", 0, 3, -1, 1))
sketch4.addConstraint(Sketcher.Constraint("Coincident", 3, 3, -1, 1))
sketch4.addConstraint(Sketcher.Constraint("Coincident", 7, 3, -1, 1))
sketch4.addConstraint(Sketcher.Constraint("Coincident", 11, 3, -1, 1))
sketch4.addConstraint(Sketcher.Constraint("Coincident", 15, 3, -1, 1))
sketch4.addConstraint(Sketcher.Constraint("Coincident", 19, 3, -1, 1))
sketch4.addConstraint(Sketcher.Constraint("Coincident", 23, 3, -1, 1))
sketch4.addConstraint(Sketcher.Constraint("Coincident", 27, 3, -1, 1))
sketch4.addConstraint(Sketcher.Constraint("Coincident", 31, 3, -1, 1))
sketch4.addConstraint(Sketcher.Constraint("Coincident", 35, 3, -1, 1))
sketch4.addConstraint(Sketcher.Constraint("Coincident", 39, 3, -1, 1))
sketch4.addConstraint(Sketcher.Constraint("Coincident", 43, 3, -1, 1))
sketch4.addConstraint(Sketcher.Constraint("Coincident", 47, 3, -1, 1))
sketch4.addConstraint(Sketcher.Constraint("Equal", 2, 4))
sketch4.addConstraint(Sketcher.Constraint("Equal", 4, 6))
sketch4.addConstraint(Sketcher.Constraint("Equal", 6, 8))
sketch4.addConstraint(Sketcher.Constraint("Equal", 8, 10))
sketch4.addConstraint(Sketcher.Constraint("Equal", 7, 11))
sketch4.addConstraint(Sketcher.Constraint("Equal", 10, 12))
sketch4.addConstraint(Sketcher.Constraint("Equal", 12, 14))
sketch4.addConstraint(Sketcher.Constraint("Equal", 3, 15))
sketch4.addConstraint(Sketcher.Constraint("Equal", 14, 16))
sketch4.addConstraint(Sketcher.Constraint("Equal", 16, 18))
sketch4.addConstraint(Sketcher.Constraint("Equal", 11, 19))
sketch4.addConstraint(Sketcher.Constraint("Equal", 18, 20))
sketch4.addConstraint(Sketcher.Constraint("Equal", 20, 22))
sketch4.addConstraint(Sketcher.Constraint("Equal", 15, 23))
sketch4.addConstraint(Sketcher.Constraint("Equal", 22, 24))
sketch4.addConstraint(Sketcher.Constraint("Equal", 24, 26))
sketch4.addConstraint(Sketcher.Constraint("Equal", 19, 27))
sketch4.addConstraint(Sketcher.Constraint("Equal", 26, 28))
sketch4.addConstraint(Sketcher.Constraint("Equal", 28, 30))
sketch4.addConstraint(Sketcher.Constraint("Equal", 23, 31))
sketch4.addConstraint(Sketcher.Constraint("Equal", 30, 32))
sketch4.addConstraint(Sketcher.Constraint("Equal", 32, 34))
sketch4.addConstraint(Sketcher.Constraint("Equal", 27, 35))
sketch4.addConstraint(Sketcher.Constraint("Equal", 34, 36))
sketch4.addConstraint(Sketcher.Constraint("Equal", 36, 38))
sketch4.addConstraint(Sketcher.Constraint("Equal", 31, 39))
sketch4.addConstraint(Sketcher.Constraint("Equal", 38, 40))
sketch4.addConstraint(Sketcher.Constraint("Equal", 40, 42))
sketch4.addConstraint(Sketcher.Constraint("Equal", 35, 43))
sketch4.addConstraint(Sketcher.Constraint("Equal", 42, 44))
sketch4.addConstraint(Sketcher.Constraint("Equal", 44, 46))
sketch4.addConstraint(Sketcher.Constraint("Equal", 39, 47))
sketch4.addConstraint(Sketcher.Constraint("Equal", 46, 48))
sketch4.addConstraint(Sketcher.Constraint("Symmetric", 5, 2, 25, 2, -1, 1))
sketch4.addConstraint(Sketcher.Constraint("Symmetric", 8, 1, 28, 1, -1, 1))
sketch4.addConstraint(Sketcher.Constraint("Symmetric", 9, 2, 33, 2, -1, 1))
sketch4.addConstraint(Sketcher.Constraint("Symmetric", 12, 1, 36, 1, -1, 1))
sketch4.addConstraint(Sketcher.Constraint("Symmetric", 17, 2, 41, 2, -1, 1))
sketch4.addConstraint(Sketcher.Constraint("Symmetric", 20, 1, 44, 1, -1, 1))
sketch4.addConstraint(Sketcher.Constraint("Symmetric", 1, 2, 4, 1, -2))
sketch4.addConstraint(Sketcher.Constraint("Symmetric", 20, 1, 33, 2, -2))
sketch4.addConstraint(Sketcher.Constraint("Symmetric", 17, 2, 36, 1, -2))
sketch4.addConstraint(Sketcher.Constraint("Perpendicular", 1, 9))
sketch4.addConstraint(Sketcher.Constraint("Perpendicular", 13, 17))
sketch4.addConstraint(Sketcher.Constraint("Equal", 5, 9))
sketch4.addConstraint(Sketcher.Constraint("Equal", 9, 13))
sketch4.addConstraint(Sketcher.Constraint("Diameter", 0, 15.0))
sketch4.addConstraint(Sketcher.Constraint("Radius", 2, 2.0))
sketch4.addConstraint(Sketcher.Constraint("Radius", 7, 18.9))
sketch4.addConstraint(Sketcher.Constraint("Angle", 1, Q("75 deg")))
sketch4.addConstraint(Sketcher.Constraint("Radius", 3, 8.35))
sketch4.addConstraint(Sketcher.Constraint("DistanceY", 6, 3, -1, 1, 16.727071))
pocket1 = body.newObject("PartDesign::Pocket", "Pocket")
pocket1.Profile = sketch4
pocket1.Length = 4
pocket1.Reversed = True

# Sketch on XZ plane
sketch5 = body.newObject("Sketcher::SketchObject", "Sketch004")
sketch5.AttachmentSupport = (doc.getObject("XZ_Plane"), [""])
sketch5.MapMode = "FlatFace"
sketch5.AttachmentOffset = App.Placement(Vector(0, 0, 2.4), App.Rotation())
sketch5.addGeometry(Part.Circle(Vector(0, 0, 0), Vector(0, 0, 1), 3.9), False)
sketch5.addConstraint(Sketcher.Constraint("Coincident", 0, 3, -1, 1))
sketch5.addConstraint(Sketcher.Constraint("Diameter", 0, 7.8))
pad3 = body.newObject("PartDesign::Pad", "Pad002")
pad3.Profile = sketch5
pad3.Length = 3.5
pad3.Reversed = True

# Sketch on XZ plane
sketch6 = body.newObject("Sketcher::SketchObject", "Sketch005")
sketch6.AttachmentSupport = (doc.getObject("XZ_Plane"), [""])
sketch6.MapMode = "FlatFace"
sketch6.AttachmentOffset = App.Placement(Vector(0, 0, -1.1), App.Rotation())
sketch6.addGeometry(Part.Circle(Vector(0, 0, 0), Vector(0, 0, 1), 2.3), False)
sketch6.addConstraint(Sketcher.Constraint("Coincident", 0, 3, -1, 1))
sketch6.addConstraint(Sketcher.Constraint("Diameter", 0, 4.68))
pocket2 = body.newObject("PartDesign::Pocket", "Pocket001")
pocket2.Profile = sketch6
pocket2.Length = 10
pocket2.Reversed = True

# Sketch on XZ plane
sketch7 = body.newObject("Sketcher::SketchObject", "Sketch006")
sketch7.AttachmentSupport = (doc.getObject("XZ_Plane"), [""])
sketch7.MapMode = "FlatFace"
sketch7.AttachmentOffset = App.Placement(Vector(0, 0, 2.4), App.Rotation())
sketch7.addGeometry(Part.Circle(Vector(-12.3, -7.1, 0), Vector(0, 0, 1), 2), False)
sketch7.addGeometry(Part.Circle(Vector(0, -14.2, 0), Vector(0, 0, 1), 2), False)
sketch7.addGeometry(Part.Circle(Vector(12.3, -7.1, 0), Vector(0, 0, 1), 2), False)
sketch7.addGeometry(Part.Circle(Vector(12.3, 7.1, 0), Vector(0, 0, 1), 2), False)
sketch7.addGeometry(Part.Circle(Vector(0, 14.2, 0), Vector(0, 0, 1), 2), False)
sketch7.addGeometry(Part.Circle(Vector(-12.3, 7.1, 0), Vector(0, 0, 1), 2), False)
sketch7.addConstraint(Sketcher.Constraint("Equal", 0, 1))
sketch7.addConstraint(Sketcher.Constraint("Equal", 1, 2))
sketch7.addConstraint(Sketcher.Constraint("Equal", 2, 3))
sketch7.addConstraint(Sketcher.Constraint("Equal", 3, 4))
sketch7.addConstraint(Sketcher.Constraint("Equal", 4, 5))
sketch7.addConstraint(Sketcher.Constraint("Symmetric", 0, 3, 3, 3, -1, 1))
sketch7.addConstraint(Sketcher.Constraint("Symmetric", 1, 3, 4, 3, -1, 1))
sketch7.addConstraint(Sketcher.Constraint("Symmetric", 2, 3, 5, 3, -1, 1))
sketch7.addConstraint(Sketcher.Constraint("Symmetric", 0, 3, 2, 3, -2))
sketch7.addConstraint(Sketcher.Constraint("PointOnObject", 1, 3, -2))
sketch7.addConstraint(Sketcher.Constraint("Diameter", 0, 4.0))
sketch7.addConstraint(Sketcher.Constraint("DistanceY", 0, 3, -1, 1, 7.1))
sketch7.addConstraint(Sketcher.Constraint("DistanceY", 1, 3, -1, 1, 14.2))
sketch7.addConstraint(Sketcher.Constraint("DistanceX", 0, 3, -1, 1, 12.297561))
pocket3 = body.newObject("PartDesign::Pocket", "Pocket002")
pocket3.Profile = sketch7
pocket3.Length = 10
pocket3.Reversed = True

doc.recompute()
